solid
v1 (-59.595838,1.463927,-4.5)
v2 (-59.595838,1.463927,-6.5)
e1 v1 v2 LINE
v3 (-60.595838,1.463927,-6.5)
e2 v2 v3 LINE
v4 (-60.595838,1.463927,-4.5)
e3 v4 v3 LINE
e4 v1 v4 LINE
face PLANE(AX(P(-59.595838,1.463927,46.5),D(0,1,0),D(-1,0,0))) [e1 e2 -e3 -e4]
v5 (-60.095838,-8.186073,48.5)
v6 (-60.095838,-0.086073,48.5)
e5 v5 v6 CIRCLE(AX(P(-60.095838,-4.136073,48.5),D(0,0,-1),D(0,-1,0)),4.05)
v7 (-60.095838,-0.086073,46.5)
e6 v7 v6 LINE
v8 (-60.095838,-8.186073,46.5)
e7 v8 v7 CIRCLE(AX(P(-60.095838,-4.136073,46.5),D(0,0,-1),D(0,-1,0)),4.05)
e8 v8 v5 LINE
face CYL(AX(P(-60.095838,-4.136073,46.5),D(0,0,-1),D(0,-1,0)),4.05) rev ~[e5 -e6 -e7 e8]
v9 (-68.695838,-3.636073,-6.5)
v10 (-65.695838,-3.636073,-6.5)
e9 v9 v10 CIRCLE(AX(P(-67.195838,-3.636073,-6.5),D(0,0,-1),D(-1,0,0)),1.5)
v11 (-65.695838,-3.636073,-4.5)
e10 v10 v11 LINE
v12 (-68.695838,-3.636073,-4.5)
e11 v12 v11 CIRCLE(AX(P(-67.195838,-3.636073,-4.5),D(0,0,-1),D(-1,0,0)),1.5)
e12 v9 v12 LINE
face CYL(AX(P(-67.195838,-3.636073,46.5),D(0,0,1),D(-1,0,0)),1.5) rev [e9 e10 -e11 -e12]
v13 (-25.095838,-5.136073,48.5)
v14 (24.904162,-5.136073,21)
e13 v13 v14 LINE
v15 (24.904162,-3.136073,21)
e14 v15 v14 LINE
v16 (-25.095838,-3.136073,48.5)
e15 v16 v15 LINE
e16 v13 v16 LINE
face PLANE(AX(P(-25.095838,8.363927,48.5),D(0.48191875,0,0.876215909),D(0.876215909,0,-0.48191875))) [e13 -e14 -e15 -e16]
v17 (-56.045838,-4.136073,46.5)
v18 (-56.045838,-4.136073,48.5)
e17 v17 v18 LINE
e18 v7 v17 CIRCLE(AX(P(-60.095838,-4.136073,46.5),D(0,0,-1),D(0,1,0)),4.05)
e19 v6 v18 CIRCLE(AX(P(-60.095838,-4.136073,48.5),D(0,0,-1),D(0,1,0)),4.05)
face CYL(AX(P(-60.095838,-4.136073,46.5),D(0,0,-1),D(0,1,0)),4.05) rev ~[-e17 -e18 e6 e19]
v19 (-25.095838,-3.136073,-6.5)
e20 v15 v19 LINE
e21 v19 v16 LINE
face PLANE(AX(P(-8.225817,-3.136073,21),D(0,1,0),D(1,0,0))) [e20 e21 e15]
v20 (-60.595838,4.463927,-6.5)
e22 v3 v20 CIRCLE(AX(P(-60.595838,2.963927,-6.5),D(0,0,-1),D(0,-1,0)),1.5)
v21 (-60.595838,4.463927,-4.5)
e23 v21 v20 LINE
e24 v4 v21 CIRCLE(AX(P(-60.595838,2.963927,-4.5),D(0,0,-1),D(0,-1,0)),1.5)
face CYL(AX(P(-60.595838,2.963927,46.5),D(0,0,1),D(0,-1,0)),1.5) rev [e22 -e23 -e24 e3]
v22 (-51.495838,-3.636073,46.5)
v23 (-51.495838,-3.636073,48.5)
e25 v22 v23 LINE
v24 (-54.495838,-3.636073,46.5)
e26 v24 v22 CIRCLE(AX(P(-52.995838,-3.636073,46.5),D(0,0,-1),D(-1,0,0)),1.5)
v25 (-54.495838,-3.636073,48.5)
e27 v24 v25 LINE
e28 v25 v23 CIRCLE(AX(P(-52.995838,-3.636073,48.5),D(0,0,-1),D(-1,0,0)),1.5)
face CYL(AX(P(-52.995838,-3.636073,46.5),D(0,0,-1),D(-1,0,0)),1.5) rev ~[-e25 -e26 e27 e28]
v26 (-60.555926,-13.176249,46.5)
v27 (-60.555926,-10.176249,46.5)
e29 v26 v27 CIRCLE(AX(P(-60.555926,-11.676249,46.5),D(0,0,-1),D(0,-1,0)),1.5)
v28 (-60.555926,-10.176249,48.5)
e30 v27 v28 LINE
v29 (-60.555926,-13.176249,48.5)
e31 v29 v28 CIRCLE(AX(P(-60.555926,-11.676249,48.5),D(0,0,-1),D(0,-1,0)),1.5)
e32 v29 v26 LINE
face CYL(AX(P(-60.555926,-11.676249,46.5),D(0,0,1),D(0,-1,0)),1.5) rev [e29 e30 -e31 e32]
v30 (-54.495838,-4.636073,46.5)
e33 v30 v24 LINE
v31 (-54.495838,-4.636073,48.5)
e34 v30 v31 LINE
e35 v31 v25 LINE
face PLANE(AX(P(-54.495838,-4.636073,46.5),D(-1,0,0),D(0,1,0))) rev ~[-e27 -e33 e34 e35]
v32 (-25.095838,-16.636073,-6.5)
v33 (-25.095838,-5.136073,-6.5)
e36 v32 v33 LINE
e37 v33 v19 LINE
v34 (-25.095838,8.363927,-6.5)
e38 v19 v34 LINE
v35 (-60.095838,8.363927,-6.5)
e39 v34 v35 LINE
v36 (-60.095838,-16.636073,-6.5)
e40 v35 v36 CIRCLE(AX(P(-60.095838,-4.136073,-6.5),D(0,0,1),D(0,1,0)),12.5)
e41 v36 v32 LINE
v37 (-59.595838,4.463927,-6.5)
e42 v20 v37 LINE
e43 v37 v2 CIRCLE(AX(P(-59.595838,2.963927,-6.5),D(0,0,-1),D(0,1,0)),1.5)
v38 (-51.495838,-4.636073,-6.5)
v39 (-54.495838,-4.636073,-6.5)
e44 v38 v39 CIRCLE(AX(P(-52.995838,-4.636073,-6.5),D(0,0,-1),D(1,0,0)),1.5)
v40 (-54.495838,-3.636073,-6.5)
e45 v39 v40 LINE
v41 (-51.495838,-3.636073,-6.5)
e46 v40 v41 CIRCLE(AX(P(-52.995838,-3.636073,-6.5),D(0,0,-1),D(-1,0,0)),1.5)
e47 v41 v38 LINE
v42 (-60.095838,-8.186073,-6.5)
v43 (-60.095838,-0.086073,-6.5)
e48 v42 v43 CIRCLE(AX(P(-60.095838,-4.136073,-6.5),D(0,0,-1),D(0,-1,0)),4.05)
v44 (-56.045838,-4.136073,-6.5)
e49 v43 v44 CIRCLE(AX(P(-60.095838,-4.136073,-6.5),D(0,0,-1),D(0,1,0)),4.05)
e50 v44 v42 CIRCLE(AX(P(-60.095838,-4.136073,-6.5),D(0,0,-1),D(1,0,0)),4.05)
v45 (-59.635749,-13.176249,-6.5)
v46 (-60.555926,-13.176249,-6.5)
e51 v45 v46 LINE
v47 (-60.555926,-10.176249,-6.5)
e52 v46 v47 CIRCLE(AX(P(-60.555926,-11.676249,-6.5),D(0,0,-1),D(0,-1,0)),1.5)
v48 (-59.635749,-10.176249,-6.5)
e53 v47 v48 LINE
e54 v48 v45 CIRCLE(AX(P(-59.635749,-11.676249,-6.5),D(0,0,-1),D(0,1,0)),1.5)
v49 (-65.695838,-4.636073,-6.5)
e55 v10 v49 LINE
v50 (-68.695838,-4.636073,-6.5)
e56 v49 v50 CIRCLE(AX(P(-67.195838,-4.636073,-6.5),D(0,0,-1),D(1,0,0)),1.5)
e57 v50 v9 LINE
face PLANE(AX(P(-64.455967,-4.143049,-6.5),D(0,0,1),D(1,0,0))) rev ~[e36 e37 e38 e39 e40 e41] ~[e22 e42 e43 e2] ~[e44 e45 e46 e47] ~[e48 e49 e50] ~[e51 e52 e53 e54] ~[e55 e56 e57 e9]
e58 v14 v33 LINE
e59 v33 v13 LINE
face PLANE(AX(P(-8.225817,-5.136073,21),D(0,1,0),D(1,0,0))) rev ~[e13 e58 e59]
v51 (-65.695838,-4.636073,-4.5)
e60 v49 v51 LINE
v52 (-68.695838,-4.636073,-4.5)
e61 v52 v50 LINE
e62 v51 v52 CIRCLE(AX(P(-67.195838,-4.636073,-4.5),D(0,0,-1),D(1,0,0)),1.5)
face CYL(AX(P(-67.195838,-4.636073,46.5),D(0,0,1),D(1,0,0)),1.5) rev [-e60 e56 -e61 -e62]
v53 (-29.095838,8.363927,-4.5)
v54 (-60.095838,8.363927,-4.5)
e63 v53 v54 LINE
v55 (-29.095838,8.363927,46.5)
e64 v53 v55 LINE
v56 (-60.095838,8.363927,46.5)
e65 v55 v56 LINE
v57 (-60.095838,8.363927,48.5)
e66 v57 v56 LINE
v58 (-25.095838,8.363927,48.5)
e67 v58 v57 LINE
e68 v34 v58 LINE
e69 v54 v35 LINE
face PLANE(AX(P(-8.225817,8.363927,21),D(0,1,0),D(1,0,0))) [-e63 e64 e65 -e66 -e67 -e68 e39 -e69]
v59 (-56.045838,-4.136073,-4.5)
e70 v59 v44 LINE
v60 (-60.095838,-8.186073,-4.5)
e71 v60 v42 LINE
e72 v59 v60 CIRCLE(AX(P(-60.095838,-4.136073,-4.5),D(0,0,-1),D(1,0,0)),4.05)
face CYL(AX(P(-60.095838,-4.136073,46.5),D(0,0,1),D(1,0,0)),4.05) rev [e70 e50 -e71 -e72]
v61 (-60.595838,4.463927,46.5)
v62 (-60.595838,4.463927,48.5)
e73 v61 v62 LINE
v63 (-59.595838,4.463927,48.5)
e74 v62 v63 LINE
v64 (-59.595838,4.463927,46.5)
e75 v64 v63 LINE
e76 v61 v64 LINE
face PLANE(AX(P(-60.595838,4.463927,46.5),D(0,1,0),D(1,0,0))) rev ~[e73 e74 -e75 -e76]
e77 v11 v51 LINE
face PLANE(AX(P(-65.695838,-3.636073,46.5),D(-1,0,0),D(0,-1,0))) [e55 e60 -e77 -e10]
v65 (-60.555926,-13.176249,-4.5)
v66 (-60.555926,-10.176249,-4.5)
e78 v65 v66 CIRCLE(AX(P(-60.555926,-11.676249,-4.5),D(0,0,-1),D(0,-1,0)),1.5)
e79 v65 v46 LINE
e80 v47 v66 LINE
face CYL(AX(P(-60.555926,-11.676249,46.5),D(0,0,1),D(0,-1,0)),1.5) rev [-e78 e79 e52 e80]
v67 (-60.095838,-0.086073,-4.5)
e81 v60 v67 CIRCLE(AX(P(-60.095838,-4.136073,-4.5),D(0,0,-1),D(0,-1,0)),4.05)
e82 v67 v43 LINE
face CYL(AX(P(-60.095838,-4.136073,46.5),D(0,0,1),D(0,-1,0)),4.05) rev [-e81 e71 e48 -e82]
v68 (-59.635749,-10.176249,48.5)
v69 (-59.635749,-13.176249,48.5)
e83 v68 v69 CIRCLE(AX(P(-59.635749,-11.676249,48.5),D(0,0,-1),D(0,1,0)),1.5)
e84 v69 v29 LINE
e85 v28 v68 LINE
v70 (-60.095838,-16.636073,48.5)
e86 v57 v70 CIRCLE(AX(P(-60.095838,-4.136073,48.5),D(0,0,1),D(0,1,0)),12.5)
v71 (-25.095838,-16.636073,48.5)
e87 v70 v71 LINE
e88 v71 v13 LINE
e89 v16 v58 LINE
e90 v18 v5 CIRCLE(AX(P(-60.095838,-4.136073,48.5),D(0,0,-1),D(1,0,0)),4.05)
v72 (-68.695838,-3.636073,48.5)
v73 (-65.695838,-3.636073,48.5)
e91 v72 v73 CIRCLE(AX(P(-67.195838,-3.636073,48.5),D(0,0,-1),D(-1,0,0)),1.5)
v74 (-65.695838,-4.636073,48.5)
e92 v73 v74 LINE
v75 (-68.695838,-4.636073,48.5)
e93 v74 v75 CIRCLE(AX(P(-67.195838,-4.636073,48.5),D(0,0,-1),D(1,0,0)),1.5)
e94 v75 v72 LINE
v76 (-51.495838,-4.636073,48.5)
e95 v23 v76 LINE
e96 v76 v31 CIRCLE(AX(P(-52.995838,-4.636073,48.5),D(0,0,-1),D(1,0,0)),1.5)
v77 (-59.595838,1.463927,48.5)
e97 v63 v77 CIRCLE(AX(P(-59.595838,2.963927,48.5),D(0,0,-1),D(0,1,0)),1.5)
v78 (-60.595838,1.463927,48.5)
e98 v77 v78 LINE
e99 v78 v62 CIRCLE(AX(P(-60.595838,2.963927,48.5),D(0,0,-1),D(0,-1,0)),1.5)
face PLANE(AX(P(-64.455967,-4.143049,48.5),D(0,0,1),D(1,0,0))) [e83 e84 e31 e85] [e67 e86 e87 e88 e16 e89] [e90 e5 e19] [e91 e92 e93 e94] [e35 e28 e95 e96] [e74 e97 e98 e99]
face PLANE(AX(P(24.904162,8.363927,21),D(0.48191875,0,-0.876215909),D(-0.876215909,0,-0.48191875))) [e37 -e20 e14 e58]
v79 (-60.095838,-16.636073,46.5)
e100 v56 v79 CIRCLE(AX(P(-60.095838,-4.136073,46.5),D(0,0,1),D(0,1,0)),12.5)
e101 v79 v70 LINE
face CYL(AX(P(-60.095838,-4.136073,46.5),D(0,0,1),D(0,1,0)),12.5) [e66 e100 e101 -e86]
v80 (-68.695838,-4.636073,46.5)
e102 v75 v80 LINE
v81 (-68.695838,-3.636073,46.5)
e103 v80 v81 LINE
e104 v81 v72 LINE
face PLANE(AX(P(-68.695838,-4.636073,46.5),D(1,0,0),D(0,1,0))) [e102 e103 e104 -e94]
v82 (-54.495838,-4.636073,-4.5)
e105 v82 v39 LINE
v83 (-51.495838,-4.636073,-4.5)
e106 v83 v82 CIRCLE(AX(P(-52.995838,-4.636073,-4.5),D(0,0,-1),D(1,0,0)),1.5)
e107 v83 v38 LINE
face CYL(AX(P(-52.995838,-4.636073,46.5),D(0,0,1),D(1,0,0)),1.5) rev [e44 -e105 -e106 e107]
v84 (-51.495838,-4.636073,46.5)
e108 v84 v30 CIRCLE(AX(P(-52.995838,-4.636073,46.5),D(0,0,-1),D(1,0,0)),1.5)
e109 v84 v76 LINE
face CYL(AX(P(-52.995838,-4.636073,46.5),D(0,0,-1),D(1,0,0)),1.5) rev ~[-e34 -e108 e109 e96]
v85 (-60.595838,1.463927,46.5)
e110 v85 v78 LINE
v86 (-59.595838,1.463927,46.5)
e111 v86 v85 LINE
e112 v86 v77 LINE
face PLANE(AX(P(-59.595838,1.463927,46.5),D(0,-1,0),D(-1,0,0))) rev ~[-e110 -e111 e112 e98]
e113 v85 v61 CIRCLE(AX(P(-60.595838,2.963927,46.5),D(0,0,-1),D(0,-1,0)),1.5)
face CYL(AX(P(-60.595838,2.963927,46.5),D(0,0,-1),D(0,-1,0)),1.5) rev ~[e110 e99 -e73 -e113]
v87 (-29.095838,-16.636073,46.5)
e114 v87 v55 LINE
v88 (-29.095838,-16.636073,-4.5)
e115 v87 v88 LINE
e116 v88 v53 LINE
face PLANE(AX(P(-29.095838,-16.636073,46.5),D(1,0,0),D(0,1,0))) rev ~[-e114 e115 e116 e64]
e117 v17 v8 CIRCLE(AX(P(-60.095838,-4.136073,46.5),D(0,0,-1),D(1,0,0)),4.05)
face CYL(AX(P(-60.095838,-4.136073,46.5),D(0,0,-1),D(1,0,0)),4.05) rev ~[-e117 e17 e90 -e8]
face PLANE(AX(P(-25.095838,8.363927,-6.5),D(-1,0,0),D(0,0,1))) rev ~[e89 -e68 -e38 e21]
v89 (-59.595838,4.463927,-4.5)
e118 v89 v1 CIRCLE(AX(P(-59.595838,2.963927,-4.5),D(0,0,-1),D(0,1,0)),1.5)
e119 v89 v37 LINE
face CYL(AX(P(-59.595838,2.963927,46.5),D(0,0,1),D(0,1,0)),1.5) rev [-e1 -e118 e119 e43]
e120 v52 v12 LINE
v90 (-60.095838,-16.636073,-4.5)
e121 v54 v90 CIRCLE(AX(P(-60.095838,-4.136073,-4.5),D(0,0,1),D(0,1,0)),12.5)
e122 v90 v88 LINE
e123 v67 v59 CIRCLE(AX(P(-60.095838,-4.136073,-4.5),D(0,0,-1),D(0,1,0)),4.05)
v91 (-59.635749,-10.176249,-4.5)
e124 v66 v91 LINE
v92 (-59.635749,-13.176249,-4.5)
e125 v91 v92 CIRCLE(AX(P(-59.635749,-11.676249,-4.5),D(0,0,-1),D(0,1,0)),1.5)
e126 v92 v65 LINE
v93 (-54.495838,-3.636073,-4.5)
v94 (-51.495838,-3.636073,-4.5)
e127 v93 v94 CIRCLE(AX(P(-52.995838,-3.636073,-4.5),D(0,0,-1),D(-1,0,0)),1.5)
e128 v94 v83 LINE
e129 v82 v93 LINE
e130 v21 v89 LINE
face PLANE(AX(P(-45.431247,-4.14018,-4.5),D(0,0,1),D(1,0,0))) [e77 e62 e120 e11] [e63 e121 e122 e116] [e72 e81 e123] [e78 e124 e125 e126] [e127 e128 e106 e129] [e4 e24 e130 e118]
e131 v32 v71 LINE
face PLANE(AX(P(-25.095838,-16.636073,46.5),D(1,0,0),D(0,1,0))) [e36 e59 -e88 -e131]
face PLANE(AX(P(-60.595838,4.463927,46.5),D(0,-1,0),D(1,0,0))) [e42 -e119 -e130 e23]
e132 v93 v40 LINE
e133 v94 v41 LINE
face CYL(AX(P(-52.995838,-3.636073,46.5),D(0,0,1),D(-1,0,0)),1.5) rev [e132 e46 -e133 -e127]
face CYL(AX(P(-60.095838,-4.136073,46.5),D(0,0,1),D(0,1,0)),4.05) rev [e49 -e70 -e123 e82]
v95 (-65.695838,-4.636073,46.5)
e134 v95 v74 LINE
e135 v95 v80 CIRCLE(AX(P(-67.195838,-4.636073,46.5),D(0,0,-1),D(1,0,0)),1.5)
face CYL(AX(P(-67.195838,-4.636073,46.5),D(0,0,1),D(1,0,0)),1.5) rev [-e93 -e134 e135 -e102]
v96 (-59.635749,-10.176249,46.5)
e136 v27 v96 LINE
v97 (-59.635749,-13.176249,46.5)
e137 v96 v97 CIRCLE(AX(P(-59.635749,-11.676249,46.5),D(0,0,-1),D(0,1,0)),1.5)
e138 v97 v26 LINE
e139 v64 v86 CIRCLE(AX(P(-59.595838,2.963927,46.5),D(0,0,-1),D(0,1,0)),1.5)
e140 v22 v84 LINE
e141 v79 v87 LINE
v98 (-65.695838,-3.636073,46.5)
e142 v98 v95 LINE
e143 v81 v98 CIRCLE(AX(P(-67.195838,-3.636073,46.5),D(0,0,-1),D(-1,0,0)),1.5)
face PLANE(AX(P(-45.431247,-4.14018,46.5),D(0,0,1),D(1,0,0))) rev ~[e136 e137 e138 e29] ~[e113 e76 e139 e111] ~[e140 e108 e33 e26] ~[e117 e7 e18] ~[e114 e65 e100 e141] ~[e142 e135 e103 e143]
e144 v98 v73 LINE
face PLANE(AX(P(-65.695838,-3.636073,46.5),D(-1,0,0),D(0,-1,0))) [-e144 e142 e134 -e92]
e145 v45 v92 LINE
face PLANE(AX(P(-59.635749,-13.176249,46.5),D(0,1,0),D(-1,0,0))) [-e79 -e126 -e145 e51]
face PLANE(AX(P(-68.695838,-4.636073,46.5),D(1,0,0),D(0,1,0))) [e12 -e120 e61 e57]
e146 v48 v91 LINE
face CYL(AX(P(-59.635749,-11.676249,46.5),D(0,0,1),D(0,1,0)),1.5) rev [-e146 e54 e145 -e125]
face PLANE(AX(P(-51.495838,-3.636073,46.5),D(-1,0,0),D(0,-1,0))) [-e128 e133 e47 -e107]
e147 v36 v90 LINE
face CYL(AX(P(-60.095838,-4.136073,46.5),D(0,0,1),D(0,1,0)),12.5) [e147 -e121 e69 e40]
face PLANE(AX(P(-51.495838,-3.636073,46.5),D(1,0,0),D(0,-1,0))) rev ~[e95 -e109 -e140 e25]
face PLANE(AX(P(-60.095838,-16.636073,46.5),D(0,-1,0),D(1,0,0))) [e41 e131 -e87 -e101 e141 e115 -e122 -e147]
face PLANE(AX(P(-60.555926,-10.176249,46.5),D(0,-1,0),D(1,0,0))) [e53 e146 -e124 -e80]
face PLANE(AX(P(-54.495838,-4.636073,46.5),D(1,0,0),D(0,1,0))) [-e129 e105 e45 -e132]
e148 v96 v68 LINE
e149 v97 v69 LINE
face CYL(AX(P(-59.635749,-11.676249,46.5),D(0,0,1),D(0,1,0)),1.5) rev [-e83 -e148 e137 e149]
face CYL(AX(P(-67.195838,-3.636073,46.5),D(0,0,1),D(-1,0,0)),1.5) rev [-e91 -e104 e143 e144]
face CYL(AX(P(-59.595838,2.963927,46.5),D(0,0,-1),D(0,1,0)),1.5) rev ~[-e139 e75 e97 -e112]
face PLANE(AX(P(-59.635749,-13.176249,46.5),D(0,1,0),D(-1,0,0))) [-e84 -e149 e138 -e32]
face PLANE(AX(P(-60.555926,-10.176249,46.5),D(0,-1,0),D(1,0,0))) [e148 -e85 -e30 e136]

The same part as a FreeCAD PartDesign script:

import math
import FreeCAD as App
import Part
import Sketcher

V = App.Vector

doc = App.newDocument("Part")
params = doc.addObject("Spreadsheet::Sheet", "Params")
for row, (alias, value) in enumerate([
    ("sketch1_width", "62 mm"),
    ("sketch1_width2", "41 mm"),
    ("sketch1_height", "42 mm"),
    ("sketch1_height2", "21 mm"),
    ("pad1_length", "42 mm"),
    ("sketch2_width", "4 mm"),
    ("sketch2_height", "25 mm"),
    ("pad2_length", "4.5 mm"),
    ("sketch3_width", "4 mm"),
    ("sketch3_height", "25 mm"),
    ("pad3_length", "45.55 mm"),
    ("sketch4_radius", "12.5 mm"),
    ("sketch4_radius2", "1.5 mm"),
    ("sketch4_width", "35 mm"),
    ("sketch4_width2", "1 mm"),
    ("sketch4_radius3", "4.05 mm"),
    ("pad4_length", "2 mm"),
    ("sketch5_radius", "12.5 mm"),
    ("sketch5_radius2", "1.5 mm"),
    ("sketch5_width", "35 mm"),
    ("sketch5_width2", "1 mm"),
    ("sketch5_radius3", "4.05 mm"),
    ("pad5_length", "53 mm"),
    ("sketch6_radius", "12.5 mm"),
    ("sketch6_radius2", "1.5 mm"),
    ("sketch6_width", "31 mm"),
    ("sketch6_width2", "1 mm"),
    ("sketch6_radius3", "4.05 mm"),
    ("pocket1_length", "51 mm"),
    ("sketch7_width", "8.5 mm"),
    ("sketch7_height", "5.5 mm"),
    ("pocket2_length", "40 mm"),
    ("sketch8_width", "62 mm"),
    ("sketch8_width2", "4 mm"),
    ("sketch8_height", "42 mm"),
    ("sketch8_height2", "25 mm"),
    ("pocket3_length", "42 mm"),
    ("sketch9_height", "55 mm"),
    ("pad6_length", "13.5 mm"),
    ("sketch10_height", "55 mm"),
    ("pocket4_length", "11.5 mm"),
], start=1):
    params.set(f"A{row}", alias)
    params.set(f"B{row}", "=" + value)
    params.setAlias(f"B{row}", alias)

body = doc.addObject("PartDesign::Body", "Body")

# Sketch on XY plane
sketch1 = body.newObject("Sketcher::SketchObject", "Sketch")
sketch1.AttachmentSupport = (doc.getObject("XY_Plane"), [""])
sketch1.MapMode = "FlatFace"
sketch1.addGeometry([
    Part.LineSegment(V(-29, 17, 0), V(-29, -25, 0)),  # 0
    Part.LineSegment(V(-29, -25, 0), V(33, -25, 0)),  # 1
    Part.LineSegment(V(33, -25, 0), V(33, 17, 0)),  # 2
    Part.LineSegment(V(33, 17, 0), V(-29, 17, 0)),  # 3
    Part.LineSegment(V(22, -15, 0), V(-19, -15, 0)),  # 4
    Part.LineSegment(V(-19, -15, 0), V(-19, 6, 0)),  # 5
    Part.LineSegment(V(-19, 6, 0), V(22, 6, 0)),  # 6
    Part.LineSegment(V(22, 6, 0), V(22, -15, 0)),  # 7
], False)
sketch1.addConstraint([
    Sketcher.Constraint("Coincident", 0, 2, 1, 1),
    Sketcher.Constraint("Coincident", 1, 2, 2, 1),
    Sketcher.Constraint("Coincident", 2, 2, 3, 1),
    Sketcher.Constraint("Coincident", 3, 2, 0, 1),
    Sketcher.Constraint("Coincident", 4, 2, 5, 1),
    Sketcher.Constraint("Coincident", 5, 2, 6, 1),
    Sketcher.Constraint("Coincident", 6, 2, 7, 1),
    Sketcher.Constraint("Coincident", 7, 2, 4, 1),
    Sketcher.Constraint("Vertical", 0),
    Sketcher.Constraint("Horizontal", 1),
    Sketcher.Constraint("Vertical", 2),
    Sketcher.Constraint("Horizontal", 3),
    Sketcher.Constraint("Horizontal", 4),
    Sketcher.Constraint("Vertical", 5),
    Sketcher.Constraint("Horizontal", 6),
    Sketcher.Constraint("Vertical", 7),
    Sketcher.Constraint("DistanceX", 1, 1, 1, 2, 62.0),
    Sketcher.Constraint("DistanceX", 4, 2, 4, 1, 41.0),
    Sketcher.Constraint("DistanceY", 0, 2, 0, 1, 42.0),
    Sketcher.Constraint("DistanceY", 5, 1, 5, 2, 21.0),
    Sketcher.Constraint("DistanceX", 0, 2, 4, 2, 10.5),
    Sketcher.Constraint("DistanceY", 0, 2, 4, 2, 10.5),
    Sketcher.Constraint("DistanceX", 0, 2, -1, 1, 29.095838),
    Sketcher.Constraint("DistanceY", 0, 2, -1, 1, 25.136073),
])
sketch1.setExpression("Constraints[16]", "Params.sketch1_width")
sketch1.setExpression("Constraints[17]", "Params.sketch1_width2")
sketch1.setExpression("Constraints[18]", "Params.sketch1_height")
sketch1.setExpression("Constraints[19]", "Params.sketch1_height2")
pad1 = body.newObject("PartDesign::Pad", "Pad")
pad1.Profile = sketch1
pad1.setExpression("Length", "Params.pad1_length")

# Sketch on XY plane
sketch2 = body.newObject("Sketcher::SketchObject", "Sketch001")
sketch2.AttachmentSupport = (doc.getObject("XY_Plane"), [""])
sketch2.MapMode = "FlatFace"
sketch2.AttachmentOffset = App.Placement(V(0, 0, 42), App.Rotation())
sketch2.addGeometry([
    Part.LineSegment(V(-29.1, 8.4, 0), V(-29.1, -16.6, 0)),
    Part.LineSegment(V(-29.1, -16.6, 0), V(-25.1, -16.6, 0)),
    Part.LineSegment(V(-25.1, -16.6, 0), V(-25.1, 8.4, 0)),
    Part.LineSegment(V(-25.1, 8.4, 0), V(-29.1, 8.4, 0)),
], False)
sketch2.addConstraint([
    Sketcher.Constraint("Coincident", 0, 2, 1, 1),
    Sketcher.Constraint("Coincident", 1, 2, 2, 1),
    Sketcher.Constraint("Coincident", 2, 2, 3, 1),
    Sketcher.Constraint("Coincident", 3, 2, 0, 1),
    Sketcher.Constraint("Vertical", 0),
    Sketcher.Constraint("Horizontal", 1),
    Sketcher.Constraint("Vertical", 2),
    Sketcher.Constraint("Horizontal", 3),
    Sketcher.Constraint("DistanceX", 1, 1, 1, 2, 4.0),
    Sketcher.Constraint("DistanceY", 0, 2, 0, 1, 25.0),
    Sketcher.Constraint("DistanceX", 0, 2, -1, 1, 29.095838),
    Sketcher.Constraint("DistanceY", 0, 2, -1, 1, 16.636073),
])
sketch2.setExpression("Constraints[8]", "Params.sketch2_width")
sketch2.setExpression("Constraints[9]", "Params.sketch2_height")
pad2 = body.newObject("PartDesign::Pad", "Pad001")
pad2.Profile = sketch2
pad2.setExpression("Length", "Params.pad2_length")

# Sketch on XY plane
sketch3 = body.newObject("Sketcher::SketchObject", "Sketch002")
sketch3.AttachmentSupport = (doc.getObject("XY_Plane"), [""])
sketch3.MapMode = "FlatFace"
sketch3.AttachmentOffset = App.Placement(V(0, 0, 42), App.Rotation())
sketch3.addGeometry([
    Part.LineSegment(V(-29.1, 8.4, 0), V(-29.1, -16.6, 0)),
    Part.LineSegment(V(-29.1, -16.6, 0), V(-25.1, -16.6, 0)),
    Part.LineSegment(V(-25.1, -16.6, 0), V(-25.1, 8.4, 0)),
    Part.LineSegment(V(-25.1, 8.4, 0), V(-29.1, 8.4, 0)),
], False)
sketch3.addConstraint([
    Sketcher.Constraint("Coincident", 0, 2, 1, 1),
    Sketcher.Constraint("Coincident", 1, 2, 2, 1),
    Sketcher.Constraint("Coincident", 2, 2, 3, 1),
    Sketcher.Constraint("Coincident", 3, 2, 0, 1),
    Sketcher.Constraint("Vertical", 0),
    Sketcher.Constraint("Horizontal", 1),
    Sketcher.Constraint("Vertical", 2),
    Sketcher.Constraint("Horizontal", 3),
    Sketcher.Constraint("DistanceX", 1, 1, 1, 2, 4.0),
    Sketcher.Constraint("DistanceY", 0, 2, 0, 1, 25.0),
    Sketcher.Constraint("DistanceX", 0, 2, -1, 1, 29.095838),
    Sketcher.Constraint("DistanceY", 0, 2, -1, 1, 16.636073),
])
sketch3.setExpression("Constraints[8]", "Params.sketch3_width")
sketch3.setExpression("Constraints[9]", "Params.sketch3_height")
pad3 = body.newObject("PartDesign::Pad", "Pad002")
pad3.Profile = sketch3
pad3.setExpression("Length", "Params.pad3_length")
pad3.Reversed = True

# Sketch on XY plane
sketch4 = body.newObject("Sketcher::SketchObject", "Sketch003")
sketch4.AttachmentSupport = (doc.getObject("XY_Plane"), [""])
sketch4.MapMode = "FlatFace"
sketch4.AttachmentOffset = App.Placement(V(0, 0, 46.5), App.Rotation())
sketch4.addGeometry([
    Part.ArcOfCircle(Part.Circle(V(-60.1, -4.1, 0), V(0, 0, 1), 12.5), math.radians(90), math.radians(270)),  # 0
    Part.LineSegment(V(-60.1, -16.6, 0), V(-25.1, -16.6, 0)),  # 1
    Part.LineSegment(V(-25.1, -16.6, 0), V(-25.1, 8.4, 0)),  # 2
    Part.LineSegment(V(-25.1, 8.4, 0), V(-60.1, 8.4, 0)),  # 3
    Part.ArcOfCircle(Part.Circle(V(-60.6, -11.7, 0), V(0, 0, 1), 1.5), math.radians(90), math.radians(270)),  # 4
    Part.LineSegment(V(-60.6, -10.2, 0), V(-59.6, -10.2, 0)),  # 5
    Part.ArcOfCircle(Part.Circle(V(-59.6, -11.7, 0), V(0, 0, 1), 1.5), math.radians(-90), math.radians(90)),  # 6
    Part.LineSegment(V(-59.6, -13.2, 0), V(-60.6, -13.2, 0)),  # 7
    Part.LineSegment(V(-68.7, -4.6, 0), V(-68.7, -3.6, 0)),  # 8
    Part.ArcOfCircle(Part.Circle(V(-67.2, -3.6, 0), V(0, 0, 1), 1.5), math.radians(0), math.radians(180)),  # 9
    Part.LineSegment(V(-65.7, -3.6, 0), V(-65.7, -4.6, 0)),  # 10
    Part.ArcOfCircle(Part.Circle(V(-67.2, -4.6, 0), V(0, 0, 1), 1.5), math.radians(180), math.radians(360)),  # 11
    Part.ArcOfCircle(Part.Circle(V(-60.1, -4.1, 0), V(0, 0, 1), 4), math.radians(90), math.radians(270)),  # 12
    Part.ArcOfCircle(Part.Circle(V(-60.1, -4.1, 0), V(0, 0, 1), 4.1), math.radians(0), math.radians(90)),  # 13
    Part.ArcOfCircle(Part.Circle(V(-60.1, -4.1, 0), V(0, 0, 1), 4), math.radians(-90), math.radians(0)),  # 14
    Part.LineSegment(V(-54.5, -4.6, 0), V(-54.5, -3.6, 0)),  # 15
    Part.ArcOfCircle(Part.Circle(V(-53, -3.6, 0), V(0, 0, 1), 1.5), math.radians(0), math.radians(180)),  # 16
    Part.LineSegment(V(-51.5, -3.6, 0), V(-51.5, -4.6, 0)),  # 17
    Part.ArcOfCircle(Part.Circle(V(-53, -4.6, 0), V(0, 0, 1), 1.5), math.radians(180), math.radians(360)),  # 18
    Part.LineSegment(V(-60.6, 4.5, 0), V(-59.6, 4.5, 0)),  # 19
    Part.ArcOfCircle(Part.Circle(V(-59.6, 3, 0), V(0, 0, 1), 1.5), math.radians(-90), math.radians(90)),  # 20
    Part.LineSegment(V(-59.6, 1.5, 0), V(-60.6, 1.5, 0)),  # 21
    Part.ArcOfCircle(Part.Circle(V(-60.6, 3, 0), V(0, 0, 1), 1.5), math.radians(90), math.radians(270)),  # 22
], False)
sketch4.addConstraint([
    Sketcher.Constraint("Tangent", 0, 2, 1, 1),
    Sketcher.Constraint("Coincident", 1, 2, 2, 1),
    Sketcher.Constraint("Coincident", 2, 2, 3, 1),
    Sketcher.Constraint("Tangent", 3, 2, 0, 1),
    Sketcher.Constraint("Tangent", 4, 1, 5, 1),
    Sketcher.Constraint("Tangent", 5, 2, 6, 2),
    Sketcher.Constraint("Tangent", 6, 1, 7, 1),
    Sketcher.Constraint("Tangent", 7, 2, 4, 2),
    Sketcher.Constraint("Tangent", 8, 2, 9, 2),
    Sketcher.Constraint("Tangent", 9, 1, 10, 1),
    Sketcher.Constraint("Tangent", 10, 2, 11, 2),
    Sketcher.Constraint("Tangent", 11, 1, 8, 1),
    Sketcher.Constraint("Tangent", 12, 1, 13, 2),
    Sketcher.Constraint("Tangent", 13, 1, 14, 2),
    Sketcher.Constraint("Tangent", 14, 1, 12, 2),
    Sketcher.Constraint("Tangent", 15, 2, 16, 2),
    Sketcher.Constraint("Tangent", 16, 1, 17, 1),
    Sketcher.Constraint("Tangent", 17, 2, 18, 2),
    Sketcher.Constraint("Tangent", 18, 1, 15, 1),
    Sketcher.Constraint("Tangent", 19, 2, 20, 2),
    Sketcher.Constraint("Tangent", 20, 1, 21, 1),
    Sketcher.Constraint("Tangent", 21, 2, 22, 2),
    Sketcher.Constraint("Tangent", 22, 1, 19, 1),
    Sketcher.Constraint("Horizontal", 1),
    Sketcher.Constraint("Vertical", 2),
    Sketcher.Constraint("Horizontal", 3),
    Sketcher.Constraint("Horizontal", 5),
    Sketcher.Constraint("Horizontal", 7),
    Sketcher.Constraint("Vertical", 8),
    Sketcher.Constraint("Vertical", 10),
    Sketcher.Constraint("Vertical", 15),
    Sketcher.Constraint("Vertical", 17),
    Sketcher.Constraint("Horizontal", 19),
    Sketcher.Constraint("Horizontal", 21),
    Sketcher.Constraint("Coincident", 12, 3, 0, 3),
    Sketcher.Constraint("Equal", 6, 9),
    Sketcher.Constraint("Equal", 11, 16),
    Sketcher.Constraint("Equal", 18, 20),
    Sketcher.Constraint("Horizontal", 9, 3, 16, 3),
    Sketcher.Constraint("Horizontal", 11, 3, 18, 3),
    Sketcher.Constraint("Horizontal", 14, 3, 13, 1),
    Sketcher.Constraint("Vertical", 3, 2, 12, 1),
    Sketcher.Constraint("Vertical", 12, 1, 14, 1),
    Sketcher.Constraint("Equal", 21, 8),
    Sketcher.Constraint("Radius", 0, 12.5),
    Sketcher.Constraint("Radius", 4, 1.5),
    Sketcher.Constraint("DistanceX", 1, 1, 1, 2, 35.0),
    Sketcher.Constraint("DistanceX", 19, 1, 19, 2, 1.0),
    Sketcher.Constraint("Radius", 12, 4.05),
    Sketcher.Constraint("DistanceY", 1, 2, 18, 3, 12.0),
    Sketcher.Constraint("DistanceX", 9, 3, 0, 3, 7.1),
    Sketcher.Constraint("DistanceX", 14, 3, 16, 3, 7.1),
    Sketcher.Constraint("DistanceX", 0, 3, 20, 3, 0.5),
    Sketcher.Constraint("DistanceY", 0, 3, 20, 3, 7.1),
    Sketcher.Constraint("DistanceX", 5, 1, 5, 2, 0.920177),
    Sketcher.Constraint("DistanceY", 4, 3, -1, 1, 11.676249),
    Sketcher.Constraint("DistanceX", 6, 3, -1, 1, 59.635749),
    Sketcher.Constraint("DistanceX", 4, 3, 0, 3, 0.460088),
    Sketcher.Constraint("DistanceY", 0, 3, -1, 1, 4.136073),
])
sketch4.setExpression("Constraints[44]", "Params.sketch4_radius")
sketch4.setExpression("Constraints[45]", "Params.sketch4_radius2")
sketch4.setExpression("Constraints[46]", "Params.sketch4_width")
sketch4.setExpression("Constraints[47]", "Params.sketch4_width2")
sketch4.setExpression("Constraints[48]", "Params.sketch4_radius3")
pad4 = body.newObject("PartDesign::Pad", "Pad003")
pad4.Profile = sketch4
pad4.setExpression("Length", "Params.pad4_length")

# Sketch on XY plane
sketch5 = body.newObject("Sketcher::SketchObject", "Sketch004")
sketch5.AttachmentSupport = (doc.getObject("XY_Plane"), [""])
sketch5.MapMode = "FlatFace"
sketch5.AttachmentOffset = App.Placement(V(0, 0, 46.5), App.Rotation())
sketch5.addGeometry([
    Part.ArcOfCircle(Part.Circle(V(-60.1, -4.1, 0), V(0, 0, 1), 12.5), math.radians(90), math.radians(270)),  # 0
    Part.LineSegment(V(-60.1, -16.6, 0), V(-25.1, -16.6, 0)),  # 1
    Part.LineSegment(V(-25.1, -16.6, 0), V(-25.1, 8.4, 0)),  # 2
    Part.LineSegment(V(-25.1, 8.4, 0), V(-60.1, 8.4, 0)),  # 3
    Part.ArcOfCircle(Part.Circle(V(-60.6, -11.7, 0), V(0, 0, 1), 1.5), math.radians(90), math.radians(270)),  # 4
    Part.LineSegment(V(-60.6, -10.2, 0), V(-59.6, -10.2, 0)),  # 5
    Part.ArcOfCircle(Part.Circle(V(-59.6, -11.7, 0), V(0, 0, 1), 1.5), math.radians(-90), math.radians(90)),  # 6
    Part.LineSegment(V(-59.6, -13.2, 0), V(-60.6, -13.2, 0)),  # 7
    Part.LineSegment(V(-68.7, -4.6, 0), V(-68.7, -3.6, 0)),  # 8
    Part.ArcOfCircle(Part.Circle(V(-67.2, -3.6, 0), V(0, 0, 1), 1.5), math.radians(0), math.radians(180)),  # 9
    Part.LineSegment(V(-65.7, -3.6, 0), V(-65.7, -4.6, 0)),  # 10
    Part.ArcOfCircle(Part.Circle(V(-67.2, -4.6, 0), V(0, 0, 1), 1.5), math.radians(180), math.radians(360)),  # 11
    Part.ArcOfCircle(Part.Circle(V(-60.1, -4.1, 0), V(0, 0, 1), 4), math.radians(90), math.radians(270)),  # 12
    Part.ArcOfCircle(Part.Circle(V(-60.1, -4.1, 0), V(0, 0, 1), 4.1), math.radians(0), math.radians(90)),  # 13
    Part.ArcOfCircle(Part.Circle(V(-60.1, -4.1, 0), V(0, 0, 1), 4), math.radians(-90), math.radians(0)),  # 14
    Part.LineSegment(V(-54.5, -4.6, 0), V(-54.5, -3.6, 0)),  # 15
    Part.ArcOfCircle(Part.Circle(V(-53, -3.6, 0), V(0, 0, 1), 1.5), math.radians(0), math.radians(180)),  # 16
    Part.LineSegment(V(-51.5, -3.6, 0), V(-51.5, -4.6, 0)),  # 17
    Part.ArcOfCircle(Part.Circle(V(-53, -4.6, 0), V(0, 0, 1), 1.5), math.radians(180), math.radians(360)),  # 18
    Part.LineSegment(V(-60.6, 4.5, 0), V(-59.6, 4.5, 0)),  # 19
    Part.ArcOfCircle(Part.Circle(V(-59.6, 3, 0), V(0, 0, 1), 1.5), math.radians(-90), math.radians(90)),  # 20
    Part.LineSegment(V(-59.6, 1.5, 0), V(-60.6, 1.5, 0)),  # 21
    Part.ArcOfCircle(Part.Circle(V(-60.6, 3, 0), V(0, 0, 1), 1.5), math.radians(90), math.radians(270)),  # 22
], False)
sketch5.addConstraint([
    Sketcher.Constraint("Tangent", 0, 2, 1, 1),
    Sketcher.Constraint("Coincident", 1, 2, 2, 1),
    Sketcher.Constraint("Coincident", 2, 2, 3, 1),
    Sketcher.Constraint("Tangent", 3, 2, 0, 1),
    Sketcher.Constraint("Tangent", 4, 1, 5, 1),
    Sketcher.Constraint("Tangent", 5, 2, 6, 2),
    Sketcher.Constraint("Tangent", 6, 1, 7, 1),
    Sketcher.Constraint("Tangent", 7, 2, 4, 2),
    Sketcher.Constraint("Tangent", 8, 2, 9, 2),
    Sketcher.Constraint("Tangent", 9, 1, 10, 1),
    Sketcher.Constraint("Tangent", 10, 2, 11, 2),
    Sketcher.Constraint("Tangent", 11, 1, 8, 1),
    Sketcher.Constraint("Tangent", 12, 1, 13, 2),
    Sketcher.Constraint("Tangent", 13, 1, 14, 2),
    Sketcher.Constraint("Tangent", 14, 1, 12, 2),
    Sketcher.Constraint("Tangent", 15, 2, 16, 2),
    Sketcher.Constraint("Tangent", 16, 1, 17, 1),
    Sketcher.Constraint("Tangent", 17, 2, 18, 2),
    Sketcher.Constraint("Tangent", 18, 1, 15, 1),
    Sketcher.Constraint("Tangent", 19, 2, 20, 2),
    Sketcher.Constraint("Tangent", 20, 1, 21, 1),
    Sketcher.Constraint("Tangent", 21, 2, 22, 2),
    Sketcher.Constraint("Tangent", 22, 1, 19, 1),
    Sketcher.Constraint("Horizontal", 1),
    Sketcher.Constraint("Vertical", 2),
    Sketcher.Constraint("Horizontal", 3),
    Sketcher.Constraint("Horizontal", 5),
    Sketcher.Constraint("Horizontal", 7),
    Sketcher.Constraint("Vertical", 8),
    Sketcher.Constraint("Vertical", 10),
    Sketcher.Constraint("Vertical", 15),
    Sketcher.Constraint("Vertical", 17),
    Sketcher.Constraint("Horizontal", 19),
    Sketcher.Constraint("Horizontal", 21),
    Sketcher.Constraint("Coincident", 12, 3, 0, 3),
    Sketcher.Constraint("Equal", 6, 9),
    Sketcher.Constraint("Equal", 11, 16),
    Sketcher.Constraint("Equal", 18, 20),
    Sketcher.Constraint("Horizontal", 9, 3, 16, 3),
    Sketcher.Constraint("Horizontal", 11, 3, 18, 3),
    Sketcher.Constraint("Horizontal", 14, 3, 13, 1),
    Sketcher.Constraint("Vertical", 3, 2, 12, 1),
    Sketcher.Constraint("Vertical", 12, 1, 14, 1),
    Sketcher.Constraint("Equal", 21, 8),
    Sketcher.Constraint("Radius", 0, 12.5),
    Sketcher.Constraint("Radius", 4, 1.5),
    Sketcher.Constraint("DistanceX", 1, 1, 1, 2, 35.0),
    Sketcher.Constraint("DistanceX", 19, 1, 19, 2, 1.0),
    Sketcher.Constraint("Radius", 12, 4.05),
    Sketcher.Constraint("DistanceY", 1, 2, 18, 3, 12.0),
    Sketcher.Constraint("DistanceX", 9, 3, 0, 3, 7.1),
    Sketcher.Constraint("DistanceX", 14, 3, 16, 3, 7.1),
    Sketcher.Constraint("DistanceX", 0, 3, 20, 3, 0.5),
    Sketcher.Constraint("DistanceY", 0, 3, 20, 3, 7.1),
    Sketcher.Constraint("DistanceX", 5, 1, 5, 2, 0.920177),
    Sketcher.Constraint("DistanceY", 4, 3, -1, 1, 11.676249),
    Sketcher.Constraint("DistanceX", 6, 3, -1, 1, 59.635749),
    Sketcher.Constraint("DistanceX", 4, 3, 0, 3, 0.460088),
    Sketcher.Constraint("DistanceY", 0, 3, -1, 1, 4.136073),
])
sketch5.setExpression("Constraints[44]", "Params.sketch5_radius")
sketch5.setExpression("Constraints[45]", "Params.sketch5_radius2")
sketch5.setExpression("Constraints[46]", "Params.sketch5_width")
sketch5.setExpression("Constraints[47]", "Params.sketch5_width2")
sketch5.setExpression("Constraints[48]", "Params.sketch5_radius3")
pad5 = body.newObject("PartDesign::Pad", "Pad004")
pad5.Profile = sketch5
pad5.setExpression("Length", "Params.pad5_length")
pad5.Reversed = True

# Sketch on XY plane
sketch6 = body.newObject("Sketcher::SketchObject", "Sketch005")
sketch6.AttachmentSupport = (doc.getObject("XY_Plane"), [""])
sketch6.MapMode = "FlatFace"
sketch6.AttachmentOffset = App.Placement(V(0, 0, 46.5), App.Rotation())
sketch6.addGeometry([
    Part.LineSegment(V(-29.1, -16.6, 0), V(-29.1, 8.4, 0)),  # 0
    Part.LineSegment(V(-29.1, 8.4, 0), V(-60.1, 8.4, 0)),  # 1
    Part.ArcOfCircle(Part.Circle(V(-60.1, -4.1, 0), V(0, 0, 1), 12.5), math.radians(90), math.radians(270)),  # 2
    Part.LineSegment(V(-60.1, -16.6, 0), V(-29.1, -16.6, 0)),  # 3
    Part.LineSegment(V(-59.6, -13.2, 0), V(-60.6, -13.2, 0)),  # 4
    Part.ArcOfCircle(Part.Circle(V(-60.6, -11.7, 0), V(0, 0, 1), 1.5), math.radians(90), math.radians(270)),  # 5
    Part.LineSegment(V(-60.6, -10.2, 0), V(-59.6, -10.2, 0)),  # 6
    Part.ArcOfCircle(Part.Circle(V(-59.6, -11.7, 0), V(0, 0, 1), 1.5), math.radians(-90), math.radians(90)),  # 7
    Part.LineSegment(V(-68.7, -4.6, 0), V(-68.7, -3.6, 0)),  # 8
    Part.ArcOfCircle(Part.Circle(V(-67.2, -3.6, 0), V(0, 0, 1), 1.5), math.radians(0), math.radians(180)),  # 9
    Part.LineSegment(V(-65.7, -3.6, 0), V(-65.7, -4.6, 0)),  # 10
    Part.ArcOfCircle(Part.Circle(V(-67.2, -4.6, 0), V(0, 0, 1), 1.5), math.radians(180), math.radians(360)),  # 11
    Part.ArcOfCircle(Part.Circle(V(-60.1, -4.1, 0), V(0, 0, 1), 4), math.radians(-90), math.radians(0)),  # 12
    Part.ArcOfCircle(Part.Circle(V(-60.1, -4.1, 0), V(0, 0, 1), 4), math.radians(90), math.radians(270)),  # 13
    Part.ArcOfCircle(Part.Circle(V(-60.1, -4.1, 0), V(0, 0, 1), 4.1), math.radians(0), math.radians(90)),  # 14
    Part.LineSegment(V(-54.5, -4.6, 0), V(-54.5, -3.6, 0)),  # 15
    Part.ArcOfCircle(Part.Circle(V(-53, -3.6, 0), V(0, 0, 1), 1.5), math.radians(0), math.radians(180)),  # 16
    Part.LineSegment(V(-51.5, -3.6, 0), V(-51.5, -4.6, 0)),  # 17
    Part.ArcOfCircle(Part.Circle(V(-53, -4.6, 0), V(0, 0, 1), 1.5), math.radians(180), math.radians(360)),  # 18
    Part.ArcOfCircle(Part.Circle(V(-59.6, 3, 0), V(0, 0, 1), 1.5), math.radians(-90), math.radians(90)),  # 19
    Part.LineSegment(V(-59.6, 1.5, 0), V(-60.6, 1.5, 0)),  # 20
    Part.ArcOfCircle(Part.Circle(V(-60.6, 3, 0), V(0, 0, 1), 1.5), math.radians(90), math.radians(270)),  # 21
    Part.LineSegment(V(-60.6, 4.5, 0), V(-59.6, 4.5, 0)),  # 22
], False)
sketch6.addConstraint([
    Sketcher.Constraint("Coincident", 0, 2, 1, 1),
    Sketcher.Constraint("Tangent", 1, 2, 2, 1),
    Sketcher.Constraint("Tangent", 2, 2, 3, 1),
    Sketcher.Constraint("Coincident", 3, 2, 0, 1),
    Sketcher.Constraint("Tangent", 4, 2, 5, 2),
    Sketcher.Constraint("Tangent", 5, 1, 6, 1),
    Sketcher.Constraint("Tangent", 6, 2, 7, 2),
    Sketcher.Constraint("Tangent", 7, 1, 4, 1),
    Sketcher.Constraint("Tangent", 8, 2, 9, 2),
    Sketcher.Constraint("Tangent", 9, 1, 10, 1),
    Sketcher.Constraint("Tangent", 10, 2, 11, 2),
    Sketcher.Constraint("Tangent", 11, 1, 8, 1),
    Sketcher.Constraint("Tangent", 12, 1, 13, 2),
    Sketcher.Constraint("Tangent", 13, 1, 14, 2),
    Sketcher.Constraint("Tangent", 14, 1, 12, 2),
    Sketcher.Constraint("Tangent", 15, 2, 16, 2),
    Sketcher.Constraint("Tangent", 16, 1, 17, 1),
    Sketcher.Constraint("Tangent", 17, 2, 18, 2),
    Sketcher.Constraint("Tangent", 18, 1, 15, 1),
    Sketcher.Constraint("Tangent", 19, 1, 20, 1),
    Sketcher.Constraint("Tangent", 20, 2, 21, 2),
    Sketcher.Constraint("Tangent", 21, 1, 22, 1),
    Sketcher.Constraint("Tangent", 22, 2, 19, 2),
    Sketcher.Constraint("Vertical", 0),
    Sketcher.Constraint("Horizontal", 1),
    Sketcher.Constraint("Horizontal", 3),
    Sketcher.Constraint("Horizontal", 4),
    Sketcher.Constraint("Horizontal", 6),
    Sketcher.Constraint("Vertical", 8),
    Sketcher.Constraint("Vertical", 10),
    Sketcher.Constraint("Vertical", 15),
    Sketcher.Constraint("Vertical", 17),
    Sketcher.Constraint("Horizontal", 20),
    Sketcher.Constraint("Horizontal", 22),
    Sketcher.Constraint("Coincident", 12, 3, 2, 3),
    Sketcher.Constraint("Equal", 7, 9),
    Sketcher.Constraint("Equal", 11, 16),
    Sketcher.Constraint("Equal", 18, 19),
    Sketcher.Constraint("Horizontal", 9, 3, 16, 3),
    Sketcher.Constraint("Horizontal", 11, 3, 18, 3),
    Sketcher.Constraint("Horizontal", 13, 3, 14, 1),
    Sketcher.Constraint("Vertical", 2, 2, 12, 1),
    Sketcher.Constraint("Vertical", 12, 1, 13, 1),
    Sketcher.Constraint("Equal", 22, 8),
    Sketcher.Constraint("Radius", 2, 12.5),
    Sketcher.Constraint("Radius", 5, 1.5),
    Sketcher.Constraint("DistanceX", 1, 2, 1, 1, 31.0),
    Sketcher.Constraint("DistanceX", 20, 2, 20, 1, 1.0),
    Sketcher.Constraint("Radius", 12, 4.05),
    Sketcher.Constraint("DistanceY", 16, 3, 0, 2, 12.0),
    Sketcher.Constraint("DistanceX", 9, 3, 2, 3, 7.1),
    Sketcher.Constraint("DistanceX", 12, 3, 16, 3, 7.1),
    Sketcher.Constraint("DistanceX", 2, 3, 19, 3, 0.5),
    Sketcher.Constraint("DistanceY", 2, 3, 19, 3, 7.1),
    Sketcher.Constraint("DistanceX", 4, 2, 4, 1, 0.920177),
    Sketcher.Constraint("DistanceY", 5, 3, -1, 1, 11.676249),
    Sketcher.Constraint("DistanceX", 7, 3, -1, 1, 59.635749),
    Sketcher.Constraint("DistanceX", 5, 3, 2, 3, 0.460088),
    Sketcher.Constraint("DistanceY", 2, 3, -1, 1, 4.136073),
])
sketch6.setExpression("Constraints[44]", "Params.sketch6_radius")
sketch6.setExpression("Constraints[45]", "Params.sketch6_radius2")
sketch6.setExpression("Constraints[46]", "Params.sketch6_width")
sketch6.setExpression("Constraints[47]", "Params.sketch6_width2")
sketch6.setExpression("Constraints[48]", "Params.sketch6_radius3")
pocket1 = body.newObject("PartDesign::Pocket", "Pocket")
pocket1.Profile = sketch6
pocket1.setExpression("Length", "Params.pocket1_length")

# Sketch on XZ plane
sketch7 = body.newObject("Sketcher::SketchObject", "Sketch006")
sketch7.AttachmentSupport = (doc.getObject("XZ_Plane"), [""])
sketch7.MapMode = "FlatFace"
sketch7.AttachmentOffset = App.Placement(V(0, 0, -16.863927), App.Rotation())
sketch7.addGeometry([
    Part.LineSegment(V(4, 30, 0), V(4, 35, 0)),
    Part.LineSegment(V(4, 35, 0), V(13, 35, 0)),
    Part.LineSegment(V(13, 35, 0), V(13, 30, 0)),
    Part.LineSegment(V(13, 30, 0), V(4, 30, 0)),
], False)
sketch7.addConstraint([
    Sketcher.Constraint("Coincident", 0, 2, 1, 1),
    Sketcher.Constraint("Coincident", 1, 2, 2, 1),
    Sketcher.Constraint("Coincident", 2, 2, 3, 1),
    Sketcher.Constraint("Coincident", 3, 2, 0, 1),
    Sketcher.Constraint("Vertical", 0),
    Sketcher.Constraint("Horizontal", 1),
    Sketcher.Constraint("Vertical", 2),
    Sketcher.Constraint("Horizontal", 3),
    Sketcher.Constraint("DistanceX", 1, 1, 1, 2, 8.5),
    Sketcher.Constraint("DistanceY", 0, 1, 0, 2, 5.5),
    Sketcher.Constraint("DistanceY", -1, 1, 0, 2, 35.25),
    Sketcher.Constraint("DistanceX", -1, 1, 0, 2, 4.204162),
])
sketch7.setExpression("Constraints[8]", "Params.sketch7_width")
sketch7.setExpression("Constraints[9]", "Params.sketch7_height")
pocket2 = body.newObject("PartDesign::Pocket", "Pocket001")
pocket2.Profile = sketch7
pocket2.setExpression("Length", "Params.pocket2_length")
pocket2.Reversed = True

# Sketch on XY plane
sketch8 = body.newObject("Sketcher::SketchObject", "Sketch007")
sketch8.AttachmentSupport = (doc.getObject("XY_Plane"), [""])
sketch8.MapMode = "FlatFace"
sketch8.addGeometry([
    Part.LineSegment(V(-29.1, 8.4, 0), V(-29.1, 16.9, 0)),  # 0
    Part.LineSegment(V(-29.1, 16.9, 0), V(32.9, 16.9, 0)),  # 1
    Part.LineSegment(V(32.9, 16.9, 0), V(32.9, -25.1, 0)),  # 2
    Part.LineSegment(V(32.9, -25.1, 0), V(-29.1, -25.1, 0)),  # 3
    Part.LineSegment(V(-29.1, -25.1, 0), V(-29.1, -16.6, 0)),  # 4
    Part.LineSegment(V(-29.1, -16.6, 0), V(-25.1, -16.6, 0)),  # 5
    Part.LineSegment(V(-25.1, -16.6, 0), V(-25.1, 8.4, 0)),  # 6
    Part.LineSegment(V(-25.1, 8.4, 0), V(-29.1, 8.4, 0)),  # 7
], False)
sketch8.addConstraint([
    Sketcher.Constraint("Coincident", 0, 2, 1, 1),
    Sketcher.Constraint("Coincident", 1, 2, 2, 1),
    Sketcher.Constraint("Coincident", 2, 2, 3, 1),
    Sketcher.Constraint("Coincident", 3, 2, 4, 1),
    Sketcher.Constraint("Coincident", 4, 2, 5, 1),
    Sketcher.Constraint("Coincident", 5, 2, 6, 1),
    Sketcher.Constraint("Coincident", 6, 2, 7, 1),
    Sketcher.Constraint("Coincident", 7, 2, 0, 1),
    Sketcher.Constraint("Vertical", 0),
    Sketcher.Constraint("Horizontal", 1),
    Sketcher.Constraint("Vertical", 2),
    Sketcher.Constraint("Horizontal", 3),
    Sketcher.Constraint("Vertical", 4),
    Sketcher.Constraint("Horizontal", 5),
    Sketcher.Constraint("Vertical", 6),
    Sketcher.Constraint("Horizontal", 7),
    Sketcher.Constraint("Vertical", 0, 2, 3, 2),
    Sketcher.Constraint("Equal", 0, 4),
    Sketcher.Constraint("DistanceX", 1, 1, 1, 2, 62.0),
    Sketcher.Constraint("DistanceX", 5, 1, 5, 2, 4.0),
    Sketcher.Constraint("DistanceY", 2, 2, 2, 1, 42.0),
    Sketcher.Constraint("DistanceY", 6, 1, 6, 2, 25.0),
    Sketcher.Constraint("DistanceX", 0, 2, -1, 1, 29.095838),
    Sketcher.Constraint("DistanceY", -1, 1, 0, 2, 16.863927),
])
sketch8.setExpression("Constraints[18]", "Params.sketch8_width")
sketch8.setExpression("Constraints[19]", "Params.sketch8_width2")
sketch8.setExpression("Constraints[20]", "Params.sketch8_height")
sketch8.setExpression("Constraints[21]", "Params.sketch8_height2")
pocket3 = body.newObject("PartDesign::Pocket", "Pocket002")
pocket3.Profile = sketch8
pocket3.setExpression("Length", "Params.pocket3_length")
pocket3.Reversed = True

# Sketch on XZ plane
sketch9 = body.newObject("Sketcher::SketchObject", "Sketch008")
sketch9.AttachmentSupport = (doc.getObject("XZ_Plane"), [""])
sketch9.MapMode = "FlatFace"
sketch9.AttachmentOffset = App.Placement(V(0, 0, -8.363927), App.Rotation())
sketch9.addGeometry([
    Part.LineSegment(V(-25, -6, 0), V(-25, 48, 0)),
    Part.LineSegment(V(-25, 48, 0), V(25, 21, 0)),
    Part.LineSegment(V(25, 21, 0), V(-25, -6, 0)),
], False)
sketch9.addConstraint([
    Sketcher.Constraint("Coincident", 0, 2, 1, 1),
    Sketcher.Constraint("Coincident", 1, 2, 2, 1),
    Sketcher.Constraint("Coincident", 2, 2, 0, 1),
    Sketcher.Constraint("Vertical", 0),
    Sketcher.Constraint("Equal", 1, 2),
    Sketcher.Constraint("DistanceY", 0, 1, 0, 2, 55.0),
    Sketcher.Constraint("DistanceY", -1, 1, 1, 2, 21.0),
    Sketcher.Constraint("DistanceX", 0, 2, 1, 2, 50.0),
    Sketcher.Constraint("DistanceX", 0, 2, -1, 1, 25.095838),
])
sketch9.setExpression("Constraints[5]", "Params.sketch9_height")
pad6 = body.newObject("PartDesign::Pad", "Pad005")
pad6.Profile = sketch9
pad6.setExpression("Length", "Params.pad6_length")

# Sketch on XZ plane
sketch10 = body.newObject("Sketcher::SketchObject", "Sketch009")
sketch10.AttachmentSupport = (doc.getObject("XZ_Plane"), [""])
sketch10.MapMode = "FlatFace"
sketch10.AttachmentOffset = App.Placement(V(0, 0, -8.363927), App.Rotation())
sketch10.addGeometry([
    Part.LineSegment(V(-25, -6, 0), V(-25, 48, 0)),
    Part.LineSegment(V(-25, 48, 0), V(25, 21, 0)),
    Part.LineSegment(V(25, 21, 0), V(-25, -6, 0)),
], False)
sketch10.addConstraint([
    Sketcher.Constraint("Coincident", 0, 2, 1, 1),
    Sketcher.Constraint("Coincident", 1, 2, 2, 1),
    Sketcher.Constraint("Coincident", 2, 2, 0, 1),
    Sketcher.Constraint("Vertical", 0),
    Sketcher.Constraint("Equal", 1, 2),
    Sketcher.Constraint("DistanceY", 0, 1, 0, 2, 55.0),
    Sketcher.Constraint("DistanceY", -1, 1, 1, 2, 21.0),
    Sketcher.Constraint("DistanceX", 0, 2, 1, 2, 50.0),
    Sketcher.Constraint("DistanceX", 0, 2, -1, 1, 25.095838),
])
sketch10.setExpression("Constraints[5]", "Params.sketch10_height")
pocket4 = body.newObject("PartDesign::Pocket", "Pocket003")
pocket4.Profile = sketch10
pocket4.setExpression("Length", "Params.pocket4_length")
pocket4.Reversed = True

doc.recompute()
